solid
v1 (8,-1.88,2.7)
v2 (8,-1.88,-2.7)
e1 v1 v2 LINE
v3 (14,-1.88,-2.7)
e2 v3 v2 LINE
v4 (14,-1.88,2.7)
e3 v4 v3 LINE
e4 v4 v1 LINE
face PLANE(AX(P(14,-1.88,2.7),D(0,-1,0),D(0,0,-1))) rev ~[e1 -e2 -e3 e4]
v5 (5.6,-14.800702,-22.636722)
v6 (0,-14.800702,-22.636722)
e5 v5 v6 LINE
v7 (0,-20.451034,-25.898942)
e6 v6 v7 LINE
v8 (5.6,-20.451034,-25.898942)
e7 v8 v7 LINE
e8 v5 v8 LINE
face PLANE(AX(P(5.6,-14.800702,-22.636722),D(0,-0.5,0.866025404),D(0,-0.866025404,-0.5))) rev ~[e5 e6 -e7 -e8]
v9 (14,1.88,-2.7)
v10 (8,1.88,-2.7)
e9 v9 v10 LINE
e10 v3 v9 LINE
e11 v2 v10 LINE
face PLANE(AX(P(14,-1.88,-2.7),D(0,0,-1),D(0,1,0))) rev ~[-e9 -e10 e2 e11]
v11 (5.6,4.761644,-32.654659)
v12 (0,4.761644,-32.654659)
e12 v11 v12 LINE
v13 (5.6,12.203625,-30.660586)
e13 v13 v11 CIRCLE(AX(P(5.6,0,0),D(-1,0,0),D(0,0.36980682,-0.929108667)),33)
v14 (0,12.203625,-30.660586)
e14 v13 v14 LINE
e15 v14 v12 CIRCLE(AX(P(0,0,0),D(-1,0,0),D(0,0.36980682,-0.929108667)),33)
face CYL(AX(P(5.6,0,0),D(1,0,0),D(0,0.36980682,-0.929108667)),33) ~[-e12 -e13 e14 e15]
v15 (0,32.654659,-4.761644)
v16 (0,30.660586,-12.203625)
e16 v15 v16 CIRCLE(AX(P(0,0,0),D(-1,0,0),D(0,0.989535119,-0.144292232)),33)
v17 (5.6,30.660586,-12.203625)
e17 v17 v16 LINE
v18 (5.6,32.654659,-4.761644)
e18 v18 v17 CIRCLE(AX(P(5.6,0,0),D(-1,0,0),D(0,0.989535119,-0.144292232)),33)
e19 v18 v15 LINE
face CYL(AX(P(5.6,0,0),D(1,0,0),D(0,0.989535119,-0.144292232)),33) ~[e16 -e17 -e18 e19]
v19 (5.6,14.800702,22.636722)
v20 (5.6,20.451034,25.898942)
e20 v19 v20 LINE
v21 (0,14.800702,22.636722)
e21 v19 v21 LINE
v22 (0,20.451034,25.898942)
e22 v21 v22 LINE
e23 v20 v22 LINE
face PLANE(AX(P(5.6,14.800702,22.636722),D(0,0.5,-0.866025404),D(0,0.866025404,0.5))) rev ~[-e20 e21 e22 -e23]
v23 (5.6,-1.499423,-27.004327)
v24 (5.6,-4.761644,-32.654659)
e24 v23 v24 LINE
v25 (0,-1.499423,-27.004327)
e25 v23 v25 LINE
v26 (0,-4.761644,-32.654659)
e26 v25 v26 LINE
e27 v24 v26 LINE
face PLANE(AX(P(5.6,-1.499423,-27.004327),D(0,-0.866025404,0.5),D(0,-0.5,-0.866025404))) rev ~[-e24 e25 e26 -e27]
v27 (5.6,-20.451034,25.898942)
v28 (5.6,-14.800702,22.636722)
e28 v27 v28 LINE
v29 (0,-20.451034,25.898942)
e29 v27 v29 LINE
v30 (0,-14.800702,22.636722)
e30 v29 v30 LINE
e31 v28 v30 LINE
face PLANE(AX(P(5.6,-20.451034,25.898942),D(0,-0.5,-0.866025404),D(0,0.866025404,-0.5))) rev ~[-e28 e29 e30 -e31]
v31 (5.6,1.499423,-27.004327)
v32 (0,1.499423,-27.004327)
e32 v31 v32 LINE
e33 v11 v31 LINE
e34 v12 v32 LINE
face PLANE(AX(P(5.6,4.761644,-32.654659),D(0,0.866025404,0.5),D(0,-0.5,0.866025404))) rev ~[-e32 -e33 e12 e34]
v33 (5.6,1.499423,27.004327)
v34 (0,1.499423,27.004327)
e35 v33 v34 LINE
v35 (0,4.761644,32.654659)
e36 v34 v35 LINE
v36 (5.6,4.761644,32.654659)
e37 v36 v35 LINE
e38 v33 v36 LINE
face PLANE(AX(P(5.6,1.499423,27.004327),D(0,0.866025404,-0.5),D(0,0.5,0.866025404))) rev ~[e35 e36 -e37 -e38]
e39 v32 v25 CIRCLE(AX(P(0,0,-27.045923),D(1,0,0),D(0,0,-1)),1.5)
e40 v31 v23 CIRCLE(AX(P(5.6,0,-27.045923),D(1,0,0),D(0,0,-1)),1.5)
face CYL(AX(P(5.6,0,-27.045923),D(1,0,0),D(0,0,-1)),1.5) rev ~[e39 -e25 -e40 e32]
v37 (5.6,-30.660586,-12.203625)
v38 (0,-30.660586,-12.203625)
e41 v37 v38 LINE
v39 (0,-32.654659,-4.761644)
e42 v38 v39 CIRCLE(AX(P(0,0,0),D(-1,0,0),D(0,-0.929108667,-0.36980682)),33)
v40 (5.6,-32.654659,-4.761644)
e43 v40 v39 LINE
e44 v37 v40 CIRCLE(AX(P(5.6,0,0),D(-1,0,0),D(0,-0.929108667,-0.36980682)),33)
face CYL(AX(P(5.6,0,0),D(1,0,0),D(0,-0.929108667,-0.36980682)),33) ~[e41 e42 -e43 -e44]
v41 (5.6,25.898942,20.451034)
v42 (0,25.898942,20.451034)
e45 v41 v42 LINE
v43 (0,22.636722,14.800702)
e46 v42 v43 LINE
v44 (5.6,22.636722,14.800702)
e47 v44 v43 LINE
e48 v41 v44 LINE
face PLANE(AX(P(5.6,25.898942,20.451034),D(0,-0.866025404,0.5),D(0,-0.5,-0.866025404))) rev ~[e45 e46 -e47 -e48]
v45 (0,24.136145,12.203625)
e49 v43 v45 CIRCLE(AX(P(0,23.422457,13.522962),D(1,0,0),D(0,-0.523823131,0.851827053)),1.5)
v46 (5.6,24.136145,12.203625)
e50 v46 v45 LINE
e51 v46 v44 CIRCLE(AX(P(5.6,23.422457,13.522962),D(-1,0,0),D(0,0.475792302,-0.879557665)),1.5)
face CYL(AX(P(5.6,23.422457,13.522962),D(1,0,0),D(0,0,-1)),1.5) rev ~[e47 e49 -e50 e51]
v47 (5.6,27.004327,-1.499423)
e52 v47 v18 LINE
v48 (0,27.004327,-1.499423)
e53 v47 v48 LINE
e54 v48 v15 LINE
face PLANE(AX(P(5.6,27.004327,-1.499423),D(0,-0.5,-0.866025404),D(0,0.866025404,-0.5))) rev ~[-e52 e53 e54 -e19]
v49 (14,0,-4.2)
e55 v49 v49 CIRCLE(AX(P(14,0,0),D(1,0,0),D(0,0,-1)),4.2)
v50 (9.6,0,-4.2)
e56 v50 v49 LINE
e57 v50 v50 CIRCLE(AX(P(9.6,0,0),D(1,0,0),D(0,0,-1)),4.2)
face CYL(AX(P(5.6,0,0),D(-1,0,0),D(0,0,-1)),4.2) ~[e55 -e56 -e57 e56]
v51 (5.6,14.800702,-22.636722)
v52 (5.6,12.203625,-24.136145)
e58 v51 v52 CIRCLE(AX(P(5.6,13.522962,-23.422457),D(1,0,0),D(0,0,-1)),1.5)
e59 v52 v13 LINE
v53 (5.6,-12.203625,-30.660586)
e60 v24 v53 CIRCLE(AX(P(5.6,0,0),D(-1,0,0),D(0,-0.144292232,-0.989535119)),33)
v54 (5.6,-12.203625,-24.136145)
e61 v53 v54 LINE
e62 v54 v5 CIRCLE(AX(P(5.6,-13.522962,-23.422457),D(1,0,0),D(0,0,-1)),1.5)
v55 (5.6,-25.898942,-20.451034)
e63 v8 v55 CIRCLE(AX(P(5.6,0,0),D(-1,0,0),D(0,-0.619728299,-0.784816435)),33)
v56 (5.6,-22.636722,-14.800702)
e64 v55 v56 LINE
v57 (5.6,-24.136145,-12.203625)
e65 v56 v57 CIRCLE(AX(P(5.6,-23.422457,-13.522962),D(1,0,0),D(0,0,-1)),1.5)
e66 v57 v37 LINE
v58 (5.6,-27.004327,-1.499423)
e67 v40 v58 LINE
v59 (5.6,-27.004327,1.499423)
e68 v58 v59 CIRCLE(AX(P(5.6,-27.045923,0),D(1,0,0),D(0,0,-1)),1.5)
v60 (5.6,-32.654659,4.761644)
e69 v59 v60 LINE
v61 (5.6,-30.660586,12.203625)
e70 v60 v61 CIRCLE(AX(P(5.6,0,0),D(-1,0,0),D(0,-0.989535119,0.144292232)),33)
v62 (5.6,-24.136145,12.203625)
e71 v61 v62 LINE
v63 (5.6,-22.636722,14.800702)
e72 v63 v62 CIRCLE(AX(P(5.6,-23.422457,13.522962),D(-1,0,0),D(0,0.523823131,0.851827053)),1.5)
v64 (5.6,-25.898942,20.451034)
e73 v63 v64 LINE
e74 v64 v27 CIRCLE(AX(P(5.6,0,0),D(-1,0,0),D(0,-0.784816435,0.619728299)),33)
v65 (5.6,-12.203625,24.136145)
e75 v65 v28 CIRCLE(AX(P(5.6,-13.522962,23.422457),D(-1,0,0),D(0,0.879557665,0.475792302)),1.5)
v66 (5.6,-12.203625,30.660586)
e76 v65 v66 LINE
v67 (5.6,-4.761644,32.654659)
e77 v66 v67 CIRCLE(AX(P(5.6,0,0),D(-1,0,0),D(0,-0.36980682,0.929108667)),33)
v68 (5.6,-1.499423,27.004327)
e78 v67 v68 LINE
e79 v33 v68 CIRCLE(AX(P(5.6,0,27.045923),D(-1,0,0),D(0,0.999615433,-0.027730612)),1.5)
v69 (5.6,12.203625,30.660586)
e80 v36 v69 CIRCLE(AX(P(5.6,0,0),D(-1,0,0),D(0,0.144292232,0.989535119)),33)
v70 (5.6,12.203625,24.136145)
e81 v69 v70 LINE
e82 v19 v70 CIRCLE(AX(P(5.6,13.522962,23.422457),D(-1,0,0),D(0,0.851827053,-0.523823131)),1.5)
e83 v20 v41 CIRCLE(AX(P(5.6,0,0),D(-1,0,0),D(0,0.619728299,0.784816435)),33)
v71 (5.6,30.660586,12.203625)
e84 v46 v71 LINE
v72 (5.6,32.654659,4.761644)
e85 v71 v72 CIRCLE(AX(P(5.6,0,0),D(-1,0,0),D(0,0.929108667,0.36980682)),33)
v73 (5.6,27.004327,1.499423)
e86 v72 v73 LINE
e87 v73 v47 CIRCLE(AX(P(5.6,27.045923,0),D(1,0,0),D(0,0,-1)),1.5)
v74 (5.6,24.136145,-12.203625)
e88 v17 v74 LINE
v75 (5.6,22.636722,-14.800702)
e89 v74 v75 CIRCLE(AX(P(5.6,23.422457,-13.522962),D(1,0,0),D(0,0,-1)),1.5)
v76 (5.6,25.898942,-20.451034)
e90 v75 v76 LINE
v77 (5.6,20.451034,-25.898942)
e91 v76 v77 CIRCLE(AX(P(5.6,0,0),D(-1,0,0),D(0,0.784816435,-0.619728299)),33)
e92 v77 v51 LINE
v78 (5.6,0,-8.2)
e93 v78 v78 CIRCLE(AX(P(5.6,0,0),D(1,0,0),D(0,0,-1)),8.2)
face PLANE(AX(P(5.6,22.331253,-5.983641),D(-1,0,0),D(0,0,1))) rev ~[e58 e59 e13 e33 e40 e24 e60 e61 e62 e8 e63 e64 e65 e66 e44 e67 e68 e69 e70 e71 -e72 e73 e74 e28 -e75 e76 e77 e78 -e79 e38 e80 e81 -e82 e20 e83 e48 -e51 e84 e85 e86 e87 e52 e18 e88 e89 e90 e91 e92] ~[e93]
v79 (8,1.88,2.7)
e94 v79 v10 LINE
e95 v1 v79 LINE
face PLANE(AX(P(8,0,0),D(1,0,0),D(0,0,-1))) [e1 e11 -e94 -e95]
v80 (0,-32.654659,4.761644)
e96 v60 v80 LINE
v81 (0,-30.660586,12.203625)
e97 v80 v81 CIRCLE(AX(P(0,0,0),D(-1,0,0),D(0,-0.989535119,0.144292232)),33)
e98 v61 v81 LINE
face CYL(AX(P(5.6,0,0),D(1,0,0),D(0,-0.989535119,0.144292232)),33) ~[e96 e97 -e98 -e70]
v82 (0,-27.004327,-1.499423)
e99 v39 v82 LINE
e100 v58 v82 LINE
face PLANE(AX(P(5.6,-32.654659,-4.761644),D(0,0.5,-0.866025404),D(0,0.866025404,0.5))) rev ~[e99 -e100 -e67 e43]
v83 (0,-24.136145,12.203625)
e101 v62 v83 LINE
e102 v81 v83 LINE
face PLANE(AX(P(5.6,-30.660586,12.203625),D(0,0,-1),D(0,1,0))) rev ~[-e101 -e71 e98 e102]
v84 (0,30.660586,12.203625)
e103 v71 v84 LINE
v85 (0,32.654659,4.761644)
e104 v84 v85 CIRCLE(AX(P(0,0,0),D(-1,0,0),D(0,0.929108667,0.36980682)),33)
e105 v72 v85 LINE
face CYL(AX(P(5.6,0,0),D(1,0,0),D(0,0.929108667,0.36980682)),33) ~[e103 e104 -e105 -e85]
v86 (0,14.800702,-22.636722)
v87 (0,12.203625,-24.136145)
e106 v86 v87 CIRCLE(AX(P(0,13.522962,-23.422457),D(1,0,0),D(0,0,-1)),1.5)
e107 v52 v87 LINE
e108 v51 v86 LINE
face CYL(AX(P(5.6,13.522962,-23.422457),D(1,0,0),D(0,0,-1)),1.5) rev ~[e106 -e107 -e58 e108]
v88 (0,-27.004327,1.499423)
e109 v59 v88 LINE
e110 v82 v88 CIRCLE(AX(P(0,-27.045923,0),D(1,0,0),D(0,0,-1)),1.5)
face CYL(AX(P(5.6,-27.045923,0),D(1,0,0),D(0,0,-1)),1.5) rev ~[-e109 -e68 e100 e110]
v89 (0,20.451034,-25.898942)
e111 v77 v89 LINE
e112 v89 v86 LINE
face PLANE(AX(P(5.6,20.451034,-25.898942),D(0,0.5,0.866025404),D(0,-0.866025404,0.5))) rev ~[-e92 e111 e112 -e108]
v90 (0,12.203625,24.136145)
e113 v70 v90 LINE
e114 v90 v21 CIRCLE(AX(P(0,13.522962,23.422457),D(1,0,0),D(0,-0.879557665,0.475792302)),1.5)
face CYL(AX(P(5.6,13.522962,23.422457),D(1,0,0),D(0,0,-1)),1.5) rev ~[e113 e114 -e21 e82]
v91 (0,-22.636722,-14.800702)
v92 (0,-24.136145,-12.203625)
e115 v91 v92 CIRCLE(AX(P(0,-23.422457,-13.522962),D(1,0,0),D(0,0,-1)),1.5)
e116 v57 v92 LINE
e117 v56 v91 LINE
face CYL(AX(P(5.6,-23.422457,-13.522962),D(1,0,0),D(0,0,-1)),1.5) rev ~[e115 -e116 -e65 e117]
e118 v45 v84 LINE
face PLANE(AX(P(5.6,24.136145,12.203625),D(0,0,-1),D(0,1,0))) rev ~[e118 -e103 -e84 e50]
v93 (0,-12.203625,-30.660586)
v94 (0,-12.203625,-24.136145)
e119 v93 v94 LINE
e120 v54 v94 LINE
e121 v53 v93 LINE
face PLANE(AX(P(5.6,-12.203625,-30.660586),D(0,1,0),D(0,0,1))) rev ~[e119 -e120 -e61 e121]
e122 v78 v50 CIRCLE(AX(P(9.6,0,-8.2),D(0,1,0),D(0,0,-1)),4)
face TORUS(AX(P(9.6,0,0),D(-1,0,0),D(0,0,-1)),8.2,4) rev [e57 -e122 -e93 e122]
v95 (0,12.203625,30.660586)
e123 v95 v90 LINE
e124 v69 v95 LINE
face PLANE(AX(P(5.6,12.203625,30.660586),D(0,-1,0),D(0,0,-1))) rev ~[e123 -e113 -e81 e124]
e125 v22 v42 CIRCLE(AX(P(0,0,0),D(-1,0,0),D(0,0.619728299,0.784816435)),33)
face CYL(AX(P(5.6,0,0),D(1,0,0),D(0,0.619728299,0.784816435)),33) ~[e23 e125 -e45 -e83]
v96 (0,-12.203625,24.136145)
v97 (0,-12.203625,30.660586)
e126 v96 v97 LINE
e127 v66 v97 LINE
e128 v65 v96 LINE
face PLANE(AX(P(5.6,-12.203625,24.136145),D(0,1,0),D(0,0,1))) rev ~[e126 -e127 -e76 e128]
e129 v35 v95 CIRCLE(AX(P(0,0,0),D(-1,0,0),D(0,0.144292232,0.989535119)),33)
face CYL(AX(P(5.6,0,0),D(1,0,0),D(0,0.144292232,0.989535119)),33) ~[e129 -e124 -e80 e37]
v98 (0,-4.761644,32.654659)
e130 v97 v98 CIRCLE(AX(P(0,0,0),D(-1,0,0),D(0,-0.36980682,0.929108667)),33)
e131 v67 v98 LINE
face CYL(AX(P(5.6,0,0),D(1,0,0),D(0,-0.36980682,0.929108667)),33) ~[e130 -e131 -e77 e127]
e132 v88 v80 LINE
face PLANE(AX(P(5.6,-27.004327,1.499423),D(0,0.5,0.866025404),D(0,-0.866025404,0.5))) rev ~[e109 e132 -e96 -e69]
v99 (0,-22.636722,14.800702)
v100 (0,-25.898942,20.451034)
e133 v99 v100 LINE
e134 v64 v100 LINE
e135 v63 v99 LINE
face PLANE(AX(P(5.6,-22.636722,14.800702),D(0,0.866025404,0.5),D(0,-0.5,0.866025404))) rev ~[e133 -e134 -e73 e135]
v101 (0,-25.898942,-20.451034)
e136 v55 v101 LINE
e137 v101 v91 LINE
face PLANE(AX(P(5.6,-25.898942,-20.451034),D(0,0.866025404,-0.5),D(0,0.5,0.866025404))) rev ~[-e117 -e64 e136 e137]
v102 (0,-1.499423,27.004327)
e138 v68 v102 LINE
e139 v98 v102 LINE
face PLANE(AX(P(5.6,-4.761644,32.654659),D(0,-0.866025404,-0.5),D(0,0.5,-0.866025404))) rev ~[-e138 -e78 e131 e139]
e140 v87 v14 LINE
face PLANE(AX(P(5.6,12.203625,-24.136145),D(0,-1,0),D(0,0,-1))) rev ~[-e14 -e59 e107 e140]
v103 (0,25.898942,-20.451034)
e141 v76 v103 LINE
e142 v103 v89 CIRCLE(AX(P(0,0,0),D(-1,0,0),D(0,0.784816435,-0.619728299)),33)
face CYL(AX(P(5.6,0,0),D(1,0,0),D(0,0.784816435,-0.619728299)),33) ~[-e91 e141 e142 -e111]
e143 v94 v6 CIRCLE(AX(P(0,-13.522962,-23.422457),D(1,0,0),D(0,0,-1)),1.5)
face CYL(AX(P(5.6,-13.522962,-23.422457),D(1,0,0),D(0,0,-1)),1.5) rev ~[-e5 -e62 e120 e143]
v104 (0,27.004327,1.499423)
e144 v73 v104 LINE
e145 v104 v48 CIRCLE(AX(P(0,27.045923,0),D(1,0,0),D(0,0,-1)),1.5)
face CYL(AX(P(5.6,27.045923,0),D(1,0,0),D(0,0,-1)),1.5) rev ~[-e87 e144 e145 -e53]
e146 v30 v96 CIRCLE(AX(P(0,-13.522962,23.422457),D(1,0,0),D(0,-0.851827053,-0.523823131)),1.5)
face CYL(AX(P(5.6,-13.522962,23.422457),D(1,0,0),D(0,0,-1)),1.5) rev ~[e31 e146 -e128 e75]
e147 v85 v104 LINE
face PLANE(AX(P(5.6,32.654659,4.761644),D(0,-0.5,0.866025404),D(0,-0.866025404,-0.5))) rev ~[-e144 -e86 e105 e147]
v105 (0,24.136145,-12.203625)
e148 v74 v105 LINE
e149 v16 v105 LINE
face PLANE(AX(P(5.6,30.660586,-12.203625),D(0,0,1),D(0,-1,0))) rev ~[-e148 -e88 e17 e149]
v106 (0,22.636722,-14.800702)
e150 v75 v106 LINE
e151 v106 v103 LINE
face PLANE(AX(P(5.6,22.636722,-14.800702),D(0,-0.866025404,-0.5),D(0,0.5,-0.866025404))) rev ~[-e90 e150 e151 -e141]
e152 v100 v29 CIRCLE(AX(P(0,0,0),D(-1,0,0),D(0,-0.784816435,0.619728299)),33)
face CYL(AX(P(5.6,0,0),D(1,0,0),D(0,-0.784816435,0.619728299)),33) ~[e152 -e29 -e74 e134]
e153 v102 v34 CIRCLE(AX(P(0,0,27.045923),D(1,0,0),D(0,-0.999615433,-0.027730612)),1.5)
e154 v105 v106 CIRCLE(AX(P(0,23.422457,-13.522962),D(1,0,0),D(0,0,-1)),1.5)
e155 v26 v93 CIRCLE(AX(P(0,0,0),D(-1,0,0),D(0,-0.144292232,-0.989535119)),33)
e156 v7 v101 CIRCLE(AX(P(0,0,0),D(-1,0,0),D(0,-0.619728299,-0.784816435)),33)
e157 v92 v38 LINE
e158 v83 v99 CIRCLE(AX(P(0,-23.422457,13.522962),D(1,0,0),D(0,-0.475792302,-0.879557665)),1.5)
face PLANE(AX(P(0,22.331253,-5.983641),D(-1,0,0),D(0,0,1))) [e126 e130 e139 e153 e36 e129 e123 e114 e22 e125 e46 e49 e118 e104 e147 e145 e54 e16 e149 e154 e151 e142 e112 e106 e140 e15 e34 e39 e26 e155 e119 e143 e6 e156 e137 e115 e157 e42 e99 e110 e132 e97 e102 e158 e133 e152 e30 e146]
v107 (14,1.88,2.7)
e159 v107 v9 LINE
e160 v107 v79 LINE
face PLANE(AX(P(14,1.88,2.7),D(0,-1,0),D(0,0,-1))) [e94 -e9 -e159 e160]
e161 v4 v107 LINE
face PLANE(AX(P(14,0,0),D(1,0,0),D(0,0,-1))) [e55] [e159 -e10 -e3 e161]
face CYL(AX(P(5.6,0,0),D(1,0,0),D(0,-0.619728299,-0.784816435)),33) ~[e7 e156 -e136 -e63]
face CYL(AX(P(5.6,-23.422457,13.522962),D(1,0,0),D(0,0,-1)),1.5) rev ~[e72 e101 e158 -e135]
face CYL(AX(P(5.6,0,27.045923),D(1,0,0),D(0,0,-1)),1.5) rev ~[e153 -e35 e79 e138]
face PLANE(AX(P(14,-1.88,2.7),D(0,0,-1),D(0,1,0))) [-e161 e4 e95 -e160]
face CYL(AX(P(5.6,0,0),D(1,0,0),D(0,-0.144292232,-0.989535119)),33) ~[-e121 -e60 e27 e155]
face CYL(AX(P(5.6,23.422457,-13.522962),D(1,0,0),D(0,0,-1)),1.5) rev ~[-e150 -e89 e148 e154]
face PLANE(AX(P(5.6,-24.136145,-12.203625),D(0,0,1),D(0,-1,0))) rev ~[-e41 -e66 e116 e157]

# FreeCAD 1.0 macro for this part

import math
import FreeCAD as App
import Part
import Sketcher

V = App.Vector
Q = App.Units.Quantity


def edges_at(feature, points):
    """Names of the edges that pass closest to the given points."""
    edges = feature.Shape.Edges
    near = lambda p: min(range(len(edges)), key=lambda i: edges[i].distToShape(Part.Vertex(*p))[0])
    return sorted({f"Edge{near(p) + 1}" for p in points})

doc = App.newDocument("Part")
body = doc.addObject("PartDesign::Body", "Body")

# Sketch on YZ plane
sketch1 = body.newObject("Sketcher::SketchObject", "Sketch")
sketch1.AttachmentSupport = (doc.getObject("YZ_Plane"), [""])
sketch1.MapMode = "FlatFace"
sketch1.addGeometry(Part.Circle(V(0, 0, 0), V(0, 0, 1), 27), False)
sketch1.addConstraint(Sketcher.Constraint("Coincident", 0, 3, -1, 1))
sketch1.addConstraint(Sketcher.Constraint("Diameter", 0, Q("54.091846 mm")))
pad1 = body.newObject("PartDesign::Pad", "Pad")
pad1.Profile = sketch1
pad1.Length = 5.6

# Sketch on YZ plane
sketch2 = body.newObject("Sketcher::SketchObject", "Sketch001")
sketch2.AttachmentSupport = (doc.getObject("YZ_Plane"), [""])
sketch2.MapMode = "FlatFace"
sketch2.AttachmentOffset = App.Placement(V(0, 0, 5.6), App.Rotation())
sketch2.addGeometry(Part.Circle(V(27, 0, 0), V(0, 0, 1), 1.5), False)
sketch2.addGeometry(Part.Circle(V(23.4, -13.5, 0), V(0, 0, 1), 1.5), False)
sketch2.addGeometry(Part.Circle(V(13.5, -23.4, 0), V(0, 0, 1), 1.5), False)
sketch2.addGeometry(Part.Circle(V(0, -27, 0), V(0, 0, 1), 1.5), False)
sketch2.addGeometry(Part.Circle(V(-13.5, -23.4, 0), V(0, 0, 1), 1.5), False)
sketch2.addGeometry(Part.Circle(V(-23.4, -13.5, 0), V(0, 0, 1), 1.5), False)
sketch2.addGeometry(Part.Circle(V(-27, 0, 0), V(0, 0, 1), 1.5), False)
sketch2.addGeometry(Part.Circle(V(-23.4, 13.5, 0), V(0, 0, 1), 1.5), False)
sketch2.addGeometry(Part.Circle(V(-13.5, 23.4, 0), V(0, 0, 1), 1.5), False)
sketch2.addGeometry(Part.Circle(V(0, 27, 0), V(0, 0, 1), 1.5), False)
sketch2.addGeometry(Part.Circle(V(13.5, 23.4, 0), V(0, 0, 1), 1.5), False)
sketch2.addGeometry(Part.Circle(V(23.4, 13.5, 0), V(0, 0, 1), 1.5), False)
sketch2.addConstraint(Sketcher.Constraint("Equal", 0, 1))
sketch2.addConstraint(Sketcher.Constraint("Equal", 1, 2))
sketch2.addConstraint(Sketcher.Constraint("Equal", 2, 3))
sketch2.addConstraint(Sketcher.Constraint("Equal", 3, 4))
sketch2.addConstraint(Sketcher.Constraint("Equal", 4, 5))
sketch2.addConstraint(Sketcher.Constraint("Equal", 5, 6))
sketch2.addConstraint(Sketcher.Constraint("Equal", 6, 7))
sketch2.addConstraint(Sketcher.Constraint("Equal", 7, 8))
sketch2.addConstraint(Sketcher.Constraint("Equal", 8, 9))
sketch2.addConstraint(Sketcher.Constraint("Equal", 9, 10))
sketch2.addConstraint(Sketcher.Constraint("Equal", 10, 11))
sketch2.addConstraint(Sketcher.Constraint("Symmetric", 0, 3, 6, 3, -1, 1))
sketch2.addConstraint(Sketcher.Constraint("Symmetric", 1, 3, 7, 3, -1, 1))
sketch2.addConstraint(Sketcher.Constraint("Symmetric", 2, 3, 8, 3, -1, 1))
sketch2.addConstraint(Sketcher.Constraint("Symmetric", 3, 3, 9, 3, -1, 1))
sketch2.addConstraint(Sketcher.Constraint("Symmetric", 4, 3, 10, 3, -1, 1))
sketch2.addConstraint(Sketcher.Constraint("Symmetric", 5, 3, 11, 3, -1, 1))
sketch2.addConstraint(Sketcher.Constraint("Symmetric", 2, 3, 4, 3, -2))
sketch2.addConstraint(Sketcher.Constraint("Symmetric", 1, 3, 5, 3, -2))
sketch2.addConstraint(Sketcher.Constraint("PointOnObject", 0, 3, -1))
sketch2.addConstraint(Sketcher.Constraint("PointOnObject", 3, 3, -2))
sketch2.addConstraint(Sketcher.Constraint("Diameter", 0, Q("3 mm")))
sketch2.addConstraint(Sketcher.Constraint("DistanceY", 1, 3, -1, 1, Q("13.522962 mm")))
sketch2.addConstraint(Sketcher.Constraint("DistanceX", -1, 1, 2, 3, Q("13.522962 mm")))
sketch2.addConstraint(Sketcher.Constraint("DistanceX", 2, 3, 0, 3, Q("13.522962 mm")))
sketch2.addConstraint(Sketcher.Constraint("DistanceY", 3, 3, 1, 3, Q("13.522962 mm")))
sketch2.addConstraint(Sketcher.Constraint("DistanceX", 4, 3, 1, 3, Q("36.945418 mm")))
sketch2.addConstraint(Sketcher.Constraint("DistanceY", 4, 3, 7, 3, Q("36.945418 mm")))
pocket1 = body.newObject("PartDesign::Pocket", "Pocket")
pocket1.Profile = sketch2
pocket1.Type = "ThroughAll"

# Sketch on YZ plane
sketch3 = body.newObject("Sketcher::SketchObject", "Sketch002")
sketch3.AttachmentSupport = (doc.getObject("YZ_Plane"), [""])
sketch3.MapMode = "FlatFace"
sketch3.AttachmentOffset = App.Placement(V(0, 0, 5.6), App.Rotation())
sketch3.addGeometry(Part.LineSegment(V(33, -5, 0), V(27, -1, 0)), False)
sketch3.addGeometry(Part.LineSegment(V(27, -1, 0), V(10, -3, 0)), False)
sketch3.addGeometry(Part.LineSegment(V(10, -3, 0), V(24, -12, 0)), False)
sketch3.addGeometry(Part.LineSegment(V(24, -12, 0), V(31, -12, 0)), False)
sketch3.addGeometry(Part.ArcOfCircle(Part.Circle(V(0, 0, 0), V(0, 0, 1), 33), math.radians(-21.7), math.radians(-8.3)), False)
sketch3.addGeometry(Part.LineSegment(V(7, -7, 0), V(15, -23, 0)), False)
sketch3.addGeometry(Part.LineSegment(V(15, -23, 0), V(20, -26, 0)), False)
sketch3.addGeometry(Part.ArcOfCircle(Part.Circle(V(0, 0, 0), V(0, 0, 1), 33), math.radians(-51.7), math.radians(-38.3)), False)
sketch3.addGeometry(Part.LineSegment(V(26, -20, 0), V(23, -15, 0)), False)
sketch3.addGeometry(Part.LineSegment(V(23, -15, 0), V(7, -7, 0)), False)
sketch3.addGeometry(Part.LineSegment(V(3, -10, 0), V(1, -27, 0)), False)
sketch3.addGeometry(Part.LineSegment(V(1, -27, 0), V(5, -33, 0)), False)
sketch3.addGeometry(Part.ArcOfCircle(Part.Circle(V(0, 0, 0), V(0, 0, 1), 33), math.radians(-81.7), math.radians(-68.3)), False)
sketch3.addGeometry(Part.LineSegment(V(12, -31, 0), V(12, -24, 0)), False)
sketch3.addGeometry(Part.LineSegment(V(12, -24, 0), V(3, -10, 0)), False)
sketch3.addGeometry(Part.LineSegment(V(-3, -10, 0), V(-12, -24, 0)), False)
sketch3.addGeometry(Part.LineSegment(V(-12, -24, 0), V(-12, -31, 0)), False)
sketch3.addGeometry(Part.ArcOfCircle(Part.Circle(V(0, 0, 0), V(0, 0, 1), 33), math.radians(-111.7), math.radians(-98.3)), False)
sketch3.addGeometry(Part.LineSegment(V(-5, -33, 0), V(-1, -27, 0)), False)
sketch3.addGeometry(Part.LineSegment(V(-1, -27, 0), V(-3, -10, 0)), False)
sketch3.addGeometry(Part.LineSegment(V(-7, -7, 0), V(-23, -15, 0)), False)
sketch3.addGeometry(Part.LineSegment(V(-23, -15, 0), V(-26, -20, 0)), False)
sketch3.addGeometry(Part.ArcOfCircle(Part.Circle(V(0, 0, 0), V(0, 0, 1), 33), math.radians(-141.7), math.radians(-128.3)), False)
sketch3.addGeometry(Part.LineSegment(V(-20, -26, 0), V(-15, -23, 0)), False)
sketch3.addGeometry(Part.LineSegment(V(-15, -23, 0), V(-7, -7, 0)), False)
sketch3.addGeometry(Part.LineSegment(V(-10, -3, 0), V(-27, -1, 0)), False)
sketch3.addGeometry(Part.LineSegment(V(-27, -1, 0), V(-33, -5, 0)), False)
sketch3.addGeometry(Part.ArcOfCircle(Part.Circle(V(0, 0, 0), V(0, 0, 1), 33), math.radians(-171.7), math.radians(-158.3)), False)
sketch3.addGeometry(Part.LineSegment(V(-31, -12, 0), V(-24, -12, 0)), False)
sketch3.addGeometry(Part.LineSegment(V(-24, -12, 0), V(-10, -3, 0)), False)
sketch3.addGeometry(Part.LineSegment(V(-10, 3, 0), V(-24, 12, 0)), False)
sketch3.addGeometry(Part.LineSegment(V(-24, 12, 0), V(-31, 12, 0)), False)
sketch3.addGeometry(Part.ArcOfCircle(Part.Circle(V(0, 0, 0), V(0, 0, 1), 33), math.radians(158.3), math.radians(171.7)), False)
sketch3.addGeometry(Part.LineSegment(V(-33, 5, 0), V(-27, 1, 0)), False)
sketch3.addGeometry(Part.LineSegment(V(-27, 1, 0), V(-10, 3, 0)), False)
sketch3.addGeometry(Part.LineSegment(V(-7, 7, 0), V(-15, 23, 0)), False)
sketch3.addGeometry(Part.LineSegment(V(-15, 23, 0), V(-20, 26, 0)), False)
sketch3.addGeometry(Part.ArcOfCircle(Part.Circle(V(0, 0, 0), V(0, 0, 1), 33), math.radians(128.3), math.radians(141.7)), False)
sketch3.addGeometry(Part.LineSegment(V(-26, 20, 0), V(-23, 15, 0)), False)
sketch3.addGeometry(Part.LineSegment(V(-23, 15, 0), V(-7, 7, 0)), False)
sketch3.addGeometry(Part.LineSegment(V(-3, 10, 0), V(-1, 27, 0)), False)
sketch3.addGeometry(Part.LineSegment(V(-1, 27, 0), V(-5, 33, 0)), False)
sketch3.addGeometry(Part.ArcOfCircle(Part.Circle(V(0, 0, 0), V(0, 0, 1), 33), math.radians(98.3), math.radians(111.7)), False)
sketch3.addGeometry(Part.LineSegment(V(-12, 31, 0), V(-12, 24, 0)), False)
sketch3.addGeometry(Part.LineSegment(V(-12, 24, 0), V(-3, 10, 0)), False)
sketch3.addGeometry(Part.LineSegment(V(3, 10, 0), V(12, 24, 0)), False)
sketch3.addGeometry(Part.LineSegment(V(12, 24, 0), V(12, 31, 0)), False)
sketch3.addGeometry(Part.ArcOfCircle(Part.Circle(V(0, 0, 0), V(0, 0, 1), 33), math.radians(68.3), math.radians(81.7)), False)
sketch3.addGeometry(Part.LineSegment(V(5, 33, 0), V(1, 27, 0)), False)
sketch3.addGeometry(Part.LineSegment(V(1, 27, 0), V(3, 10, 0)), False)
sketch3.addGeometry(Part.LineSegment(V(7, 7, 0), V(23, 15, 0)), False)
sketch3.addGeometry(Part.LineSegment(V(23, 15, 0), V(26, 20, 0)), False)
sketch3.addGeometry(Part.ArcOfCircle(Part.Circle(V(0, 0, 0), V(0, 0, 1), 33), math.radians(38.3), math.radians(51.7)), False)
sketch3.addGeometry(Part.LineSegment(V(20, 26, 0), V(15, 23, 0)), False)
sketch3.addGeometry(Part.LineSegment(V(15, 23, 0), V(7, 7, 0)), False)
sketch3.addGeometry(Part.LineSegment(V(10, 3, 0), V(27, 1, 0)), False)
sketch3.addGeometry(Part.LineSegment(V(27, 1, 0), V(33, 5, 0)), False)
sketch3.addGeometry(Part.ArcOfCircle(Part.Circle(V(0, 0, 0), V(0, 0, 1), 33), math.radians(8.3), math.radians(21.7)), False)
sketch3.addGeometry(Part.LineSegment(V(31, 12, 0), V(24, 12, 0)), False)
sketch3.addGeometry(Part.LineSegment(V(24, 12, 0), V(10, 3, 0)), False)
sketch3.addConstraint(Sketcher.Constraint("Coincident", 0, 2, 1, 1))
sketch3.addConstraint(Sketcher.Constraint("Coincident", 1, 2, 2, 1))
sketch3.addConstraint(Sketcher.Constraint("Coincident", 2, 2, 3, 1))
sketch3.addConstraint(Sketcher.Constraint("Coincident", 3, 2, 4, 1))
sketch3.addConstraint(Sketcher.Constraint("Coincident", 4, 2, 0, 1))
sketch3.addConstraint(Sketcher.Constraint("Coincident", 5, 2, 6, 1))
sketch3.addConstraint(Sketcher.Constraint("Coincident", 6, 2, 7, 1))
sketch3.addConstraint(Sketcher.Constraint("Coincident", 7, 2, 8, 1))
sketch3.addConstraint(Sketcher.Constraint("Coincident", 8, 2, 9, 1))
sketch3.addConstraint(Sketcher.Constraint("Coincident", 9, 2, 5, 1))
sketch3.addConstraint(Sketcher.Constraint("Coincident", 10, 2, 11, 1))
sketch3.addConstraint(Sketcher.Constraint("Coincident", 11, 2, 12, 1))
sketch3.addConstraint(Sketcher.Constraint("Coincident", 12, 2, 13, 1))
sketch3.addConstraint(Sketcher.Constraint("Coincident", 13, 2, 14, 1))
sketch3.addConstraint(Sketcher.Constraint("Coincident", 14, 2, 10, 1))
sketch3.addConstraint(Sketcher.Constraint("Coincident", 15, 2, 16, 1))
sketch3.addConstraint(Sketcher.Constraint("Coincident", 16, 2, 17, 1))
sketch3.addConstraint(Sketcher.Constraint("Coincident", 17, 2, 18, 1))
sketch3.addConstraint(Sketcher.Constraint("Coincident", 18, 2, 19, 1))
sketch3.addConstraint(Sketcher.Constraint("Coincident", 19, 2, 15, 1))
sketch3.addConstraint(Sketcher.Constraint("Coincident", 20, 2, 21, 1))
sketch3.addConstraint(Sketcher.Constraint("Coincident", 21, 2, 22, 1))
sketch3.addConstraint(Sketcher.Constraint("Coincident", 22, 2, 23, 1))
sketch3.addConstraint(Sketcher.Constraint("Coincident", 23, 2, 24, 1))
sketch3.addConstraint(Sketcher.Constraint("Coincident", 24, 2, 20, 1))
sketch3.addConstraint(Sketcher.Constraint("Coincident", 25, 2, 26, 1))
sketch3.addConstraint(Sketcher.Constraint("Coincident", 26, 2, 27, 1))
sketch3.addConstraint(Sketcher.Constraint("Coincident", 27, 2, 28, 1))
sketch3.addConstraint(Sketcher.Constraint("Coincident", 28, 2, 29, 1))
sketch3.addConstraint(Sketcher.Constraint("Coincident", 29, 2, 25, 1))
sketch3.addConstraint(Sketcher.Constraint("Coincident", 30, 2, 31, 1))
sketch3.addConstraint(Sketcher.Constraint("Coincident", 31, 2, 32, 1))
sketch3.addConstraint(Sketcher.Constraint("Coincident", 32, 2, 33, 1))
sketch3.addConstraint(Sketcher.Constraint("Coincident", 33, 2, 34, 1))
sketch3.addConstraint(Sketcher.Constraint("Coincident", 34, 2, 30, 1))
sketch3.addConstraint(Sketcher.Constraint("Coincident", 35, 2, 36, 1))
sketch3.addConstraint(Sketcher.Constraint("Coincident", 36, 2, 37, 1))
sketch3.addConstraint(Sketcher.Constraint("Coincident", 37, 2, 38, 1))
sketch3.addConstraint(Sketcher.Constraint("Coincident", 38, 2, 39, 1))
sketch3.addConstraint(Sketcher.Constraint("Coincident", 39, 2, 35, 1))
sketch3.addConstraint(Sketcher.Constraint("Coincident", 40, 2, 41, 1))
sketch3.addConstraint(Sketcher.Constraint("Coincident", 41, 2, 42, 1))
sketch3.addConstraint(Sketcher.Constraint("Coincident", 42, 2, 43, 1))
sketch3.addConstraint(Sketcher.Constraint("Coincident", 43, 2, 44, 1))
sketch3.addConstraint(Sketcher.Constraint("Coincident", 44, 2, 40, 1))
sketch3.addConstraint(Sketcher.Constraint("Coincident", 45, 2, 46, 1))
sketch3.addConstraint(Sketcher.Constraint("Coincident", 46, 2, 47, 1))
sketch3.addConstraint(Sketcher.Constraint("Coincident", 47, 2, 48, 1))
sketch3.addConstraint(Sketcher.Constraint("Coincident", 48, 2, 49, 1))
sketch3.addConstraint(Sketcher.Constraint("Coincident", 49, 2, 45, 1))
sketch3.addConstraint(Sketcher.Constraint("Coincident", 50, 2, 51, 1))
sketch3.addConstraint(Sketcher.Constraint("Coincident", 51, 2, 52, 1))
sketch3.addConstraint(Sketcher.Constraint("Coincident", 52, 2, 53, 1))
sketch3.addConstraint(Sketcher.Constraint("Coincident", 53, 2, 54, 1))
sketch3.addConstraint(Sketcher.Constraint("Coincident", 54, 2, 50, 1))
sketch3.addConstraint(Sketcher.Constraint("Coincident", 55, 2, 56, 1))
sketch3.addConstraint(Sketcher.Constraint("Coincident", 56, 2, 57, 1))
sketch3.addConstraint(Sketcher.Constraint("Coincident", 57, 2, 58, 1))
sketch3.addConstraint(Sketcher.Constraint("Coincident", 58, 2, 59, 1))
sketch3.addConstraint(Sketcher.Constraint("Coincident", 59, 2, 55, 1))
sketch3.addConstraint(Sketcher.Constraint("Horizontal", 3))
sketch3.addConstraint(Sketcher.Constraint("Vertical", 13))
sketch3.addConstraint(Sketcher.Constraint("Vertical", 16))
sketch3.addConstraint(Sketcher.Constraint("Horizontal", 28))
sketch3.addConstraint(Sketcher.Constraint("Horizontal", 31))
sketch3.addConstraint(Sketcher.Constraint("Vertical", 43))
sketch3.addConstraint(Sketcher.Constraint("Vertical", 46))
sketch3.addConstraint(Sketcher.Constraint("Horizontal", 58))
sketch3.addConstraint(Sketcher.Constraint("Coincident", 4, 3, -1, 1))
sketch3.addConstraint(Sketcher.Constraint("Coincident", 7, 3, -1, 1))
sketch3.addConstraint(Sketcher.Constraint("Coincident", 12, 3, -1, 1))
sketch3.addConstraint(Sketcher.Constraint("Coincident", 17, 3, -1, 1))
sketch3.addConstraint(Sketcher.Constraint("Coincident", 22, 3, -1, 1))
sketch3.addConstraint(Sketcher.Constraint("Coincident", 27, 3, -1, 1))
sketch3.addConstraint(Sketcher.Constraint("Coincident", 32, 3, -1, 1))
sketch3.addConstraint(Sketcher.Constraint("Coincident", 37, 3, -1, 1))
sketch3.addConstraint(Sketcher.Constraint("Coincident", 42, 3, -1, 1))
sketch3.addConstraint(Sketcher.Constraint("Coincident", 47, 3, -1, 1))
sketch3.addConstraint(Sketcher.Constraint("Coincident", 52, 3, -1, 1))
sketch3.addConstraint(Sketcher.Constraint("Coincident", 57, 3, -1, 1))
sketch3.addConstraint(Sketcher.Constraint("Equal", 4, 7))
sketch3.addConstraint(Sketcher.Constraint("Equal", 7, 12))
sketch3.addConstraint(Sketcher.Constraint("Equal", 12, 17))
sketch3.addConstraint(Sketcher.Constraint("Equal", 17, 22))
sketch3.addConstraint(Sketcher.Constraint("Equal", 22, 27))
sketch3.addConstraint(Sketcher.Constraint("Equal", 27, 32))
sketch3.addConstraint(Sketcher.Constraint("Equal", 32, 37))
sketch3.addConstraint(Sketcher.Constraint("Equal", 37, 42))
sketch3.addConstraint(Sketcher.Constraint("Equal", 42, 47))
sketch3.addConstraint(Sketcher.Constraint("Equal", 47, 52))
sketch3.addConstraint(Sketcher.Constraint("Equal", 52, 57))
sketch3.addConstraint(Sketcher.Constraint("Symmetric", 2, 2, 30, 2, -1, 1))
sketch3.addConstraint(Sketcher.Constraint("Symmetric", 0, 2, 33, 2, -1, 1))
sketch3.addConstraint(Sketcher.Constraint("Symmetric", 1, 2, 34, 2, -1, 1))
sketch3.addConstraint(Sketcher.Constraint("Symmetric", 5, 2, 35, 2, -1, 1))
sketch3.addConstraint(Sketcher.Constraint("Symmetric", 8, 2, 38, 2, -1, 1))
sketch3.addConstraint(Sketcher.Constraint("Symmetric", 9, 2, 39, 2, -1, 1))
sketch3.addConstraint(Sketcher.Constraint("Symmetric", 10, 2, 40, 2, -1, 1))
sketch3.addConstraint(Sketcher.Constraint("Symmetric", 13, 2, 43, 2, -1, 1))
sketch3.addConstraint(Sketcher.Constraint("Symmetric", 14, 2, 44, 2, -1, 1))
sketch3.addConstraint(Sketcher.Constraint("Symmetric", 15, 2, 45, 2, -1, 1))
sketch3.addConstraint(Sketcher.Constraint("Symmetric", 18, 2, 48, 2, -1, 1))
sketch3.addConstraint(Sketcher.Constraint("Symmetric", 19, 2, 49, 2, -1, 1))
sketch3.addConstraint(Sketcher.Constraint("Symmetric", 20, 2, 50, 2, -1, 1))
sketch3.addConstraint(Sketcher.Constraint("Symmetric", 23, 2, 53, 2, -1, 1))
sketch3.addConstraint(Sketcher.Constraint("Symmetric", 24, 2, 54, 2, -1, 1))
sketch3.addConstraint(Sketcher.Constraint("Symmetric", 25, 2, 55, 2, -1, 1))
sketch3.addConstraint(Sketcher.Constraint("Symmetric", 28, 2, 58, 2, -1, 1))
sketch3.addConstraint(Sketcher.Constraint("Symmetric", 29, 2, 59, 2, -1, 1))
sketch3.addConstraint(Sketcher.Constraint("Symmetric", 13, 2, 15, 2, -2))
sketch3.addConstraint(Sketcher.Constraint("Symmetric", 10, 2, 18, 2, -2))
sketch3.addConstraint(Sketcher.Constraint("Symmetric", 14, 2, 19, 2, -2))
sketch3.addConstraint(Sketcher.Constraint("Symmetric", 8, 2, 20, 2, -2))
sketch3.addConstraint(Sketcher.Constraint("Symmetric", 5, 2, 23, 2, -2))
sketch3.addConstraint(Sketcher.Constraint("Symmetric", 9, 2, 24, 2, -2))
sketch3.addConstraint(Sketcher.Constraint("Symmetric", 0, 2, 25, 2, -2))
sketch3.addConstraint(Sketcher.Constraint("Symmetric", 2, 2, 28, 2, -2))
sketch3.addConstraint(Sketcher.Constraint("Symmetric", 1, 2, 29, 2, -2))
sketch3.addConstraint(Sketcher.Constraint("Parallel", 0, 6))
sketch3.addConstraint(Sketcher.Constraint("Parallel", 8, 11))
sketch3.addConstraint(Sketcher.Constraint("Perpendicular", 2, 15))
sketch3.addConstraint(Sketcher.Constraint("Perpendicular", 6, 18))
sketch3.addConstraint(Sketcher.Constraint("Perpendicular", 1, 19))
sketch3.addConstraint(Sketcher.Constraint("Perpendicular", 5, 20))
sketch3.addConstraint(Sketcher.Constraint("Parallel", 18, 21))
sketch3.addConstraint(Sketcher.Constraint("Perpendicular", 11, 23))
sketch3.addConstraint(Sketcher.Constraint("Parallel", 23, 26))
sketch3.addConstraint(Sketcher.Constraint("Perpendicular", 21, 33))
sketch3.addConstraint(Sketcher.Constraint("Parallel", 33, 36))
sketch3.addConstraint(Sketcher.Constraint("Perpendicular", 26, 38))
sketch3.addConstraint(Sketcher.Constraint("Parallel", 38, 41))
sketch3.addConstraint(Sketcher.Constraint("Perpendicular", 36, 48))
sketch3.addConstraint(Sketcher.Constraint("Parallel", 48, 51))
sketch3.addConstraint(Sketcher.Constraint("Perpendicular", 41, 53))
sketch3.addConstraint(Sketcher.Constraint("Parallel", 53, 56))
sketch3.addConstraint(Sketcher.Constraint("Horizontal", 11, 2, 17, 2))
sketch3.addConstraint(Sketcher.Constraint("Equal", 58, 13))
sketch3.addConstraint(Sketcher.Constraint("Equal", 1, 2))
sketch3.addConstraint(Sketcher.Constraint("Equal", 2, 5))
sketch3.addConstraint(Sketcher.Constraint("Equal", 0, 6))
sketch3.addConstraint(Sketcher.Constraint("Equal", 6, 8))
sketch3.addConstraint(Sketcher.Constraint("Equal", 5, 9))
sketch3.addConstraint(Sketcher.Constraint("Equal", 9, 10))
sketch3.addConstraint(Sketcher.Constraint("Equal", 8, 11))
sketch3.addConstraint(Sketcher.Constraint("Equal", 10, 14))
sketch3.addConstraint(Sketcher.Constraint("Radius", 4, Q("33 mm")))
sketch3.addConstraint(Sketcher.Constraint("Angle", 0, Q("150 deg")))
sketch3.addConstraint(Sketcher.Constraint("DistanceX", -1, 1, 1, 2, Q("10 mm")))
sketch3.addConstraint(Sketcher.Constraint("DistanceX", 3, 1, 3, 2, Q("6.524441 mm")))
sketch3.addConstraint(Sketcher.Constraint("Distance", 0, Q("6.524441 mm")))
sketch3.addConstraint(Sketcher.Constraint("DistanceY", 1, 2, -1, 1, Q("2.679492 mm")))
sketch3.addConstraint(Sketcher.Constraint("DistanceX", -1, 1, 4, 2, Q("32.654659 mm")))
sketch3.addConstraint(Sketcher.Constraint("DistanceY", 5, 2, -1, 1, Q("22.636722 mm")))
pad2 = body.newObject("PartDesign::Pad", "Pad001")
pad2.Profile = sketch3
pad2.Length = 5.6
pad2.Reversed = True

# Sketch on YZ plane
sketch4 = body.newObject("Sketcher::SketchObject", "Sketch003")
sketch4.AttachmentSupport = (doc.getObject("YZ_Plane"), [""])
sketch4.MapMode = "FlatFace"
sketch4.AttachmentOffset = App.Placement(V(0, 0, 5.6), App.Rotation())
sketch4.addGeometry(Part.Circle(V(0, 0, 0), V(0, 0, 1), 4.2), False)
sketch4.addConstraint(Sketcher.Constraint("Coincident", 0, 3, -1, 1))
sketch4.addConstraint(Sketcher.Constraint("Diameter", 0, Q("8.4 mm")))
pad3 = body.newObject("PartDesign::Pad", "Pad002")
pad3.Profile = sketch4
pad3.Length = 8.4

# Sketch on YZ plane
sketch5 = body.newObject("Sketcher::SketchObject", "Sketch004")
sketch5.AttachmentSupport = (doc.getObject("YZ_Plane"), [""])
sketch5.MapMode = "FlatFace"
sketch5.AttachmentOffset = App.Placement(V(0, 0, 14), App.Rotation())
sketch5.addGeometry(Part.LineSegment(V(1.9, 2.7, 0), V(-1.9, 2.7, 0)), False)
sketch5.addGeometry(Part.LineSegment(V(-1.9, 2.7, 0), V(-1.9, -2.7, 0)), False)
sketch5.addGeometry(Part.LineSegment(V(-1.9, -2.7, 0), V(1.9, -2.7, 0)), False)
sketch5.addGeometry(Part.LineSegment(V(1.9, -2.7, 0), V(1.9, 2.7, 0)), False)
sketch5.addConstraint(Sketcher.Constraint("Coincident", 0, 2, 1, 1))
sketch5.addConstraint(Sketcher.Constraint("Coincident", 1, 2, 2, 1))
sketch5.addConstraint(Sketcher.Constraint("Coincident", 2, 2, 3, 1))
sketch5.addConstraint(Sketcher.Constraint("Coincident", 3, 2, 0, 1))
sketch5.addConstraint(Sketcher.Constraint("Horizontal", 0))
sketch5.addConstraint(Sketcher.Constraint("Vertical", 1))
sketch5.addConstraint(Sketcher.Constraint("Horizontal", 2))
sketch5.addConstraint(Sketcher.Constraint("Vertical", 3))
sketch5.addConstraint(Sketcher.Constraint("Symmetric", 0, 2, 2, 2, -1, 1))
sketch5.addConstraint(Sketcher.Constraint("DistanceY", 1, 2, 1, 1, Q("5.4 mm")))
sketch5.addConstraint(Sketcher.Constraint("DistanceX", 0, 2, 0, 1, Q("3.76 mm")))
pocket2 = body.newObject("PartDesign::Pocket", "Pocket001")
pocket2.Profile = sketch5
pocket2.Length = 6
doc.recompute()

fillet = body.newObject("PartDesign::Fillet", "Fillet")
fillet.Base = (pocket2, edges_at(pocket2, [(5.6, 0, 4.2)]))
fillet.Radius = 4

doc.recompute()
